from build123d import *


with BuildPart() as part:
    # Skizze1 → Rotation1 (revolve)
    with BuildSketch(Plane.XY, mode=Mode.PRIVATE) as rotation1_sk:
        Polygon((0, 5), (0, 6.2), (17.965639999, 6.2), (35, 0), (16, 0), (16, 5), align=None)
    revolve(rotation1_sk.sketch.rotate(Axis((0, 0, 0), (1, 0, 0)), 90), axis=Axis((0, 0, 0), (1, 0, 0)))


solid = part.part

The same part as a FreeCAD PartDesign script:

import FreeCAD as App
import Part
import Sketcher
from FreeCAD import Vector
Q = App.Units.Quantity


def add_polygon(sketch, points):
    """Adds a closed chain of lines whose ends are joined by coincident constraints."""
    first, n = sketch.GeometryCount, len(points)
    for a, b in zip(points, points[1:] + points[:1]):
        sketch.addGeometry(Part.LineSegment(App.Vector(*a, 0), App.Vector(*b, 0)), False)
    for i in range(n):
        sketch.addConstraint(Sketcher.Constraint("Coincident", first + i, 2, first + (i + 1) % n, 1))

doc = App.newDocument("Part")
body = doc.addObject("PartDesign::Body", "Body")

sketch1 = body.newObject("Sketcher::SketchObject", "Sketch")
sketch1.AttachmentSupport = (doc.getObject("XY_Plane"), [""])
sketch1.MapMode = "FlatFace"
add_polygon(sketch1, [(0, 6.2), (0, 5), (16, 5), (16, 0), (35, 0), (18, 6.2)])
sketch1.addConstraint([
    Sketcher.Constraint("Vertical", 0),
    Sketcher.Constraint("Horizontal", 1),
    Sketcher.Constraint("Vertical", 2),
    Sketcher.Constraint("Horizontal", 3),
    Sketcher.Constraint("Horizontal", 5),
    Sketcher.Constraint("PointOnObject", 0, 2, -2),
    Sketcher.Constraint("PointOnObject", 2, 2, -1),
    Sketcher.Constraint("DistanceX", 1, 1, 1, 2, 16.0),
    Sketcher.Constraint("DistanceX", 3, 1, 3, 2, 19.0),
    Sketcher.Constraint("DistanceY", 2, 2, 2, 1, 5.0),
    Sketcher.Constraint("Angle", 4, Q("160 deg")),
    Sketcher.Constraint("DistanceY", 0, 2, 0, 1, 1.2),
])
revolution = body.newObject("PartDesign::Revolution", "Revolution")
revolution.Profile = sketch1
revolution.ReferenceAxis = (sketch1, ["H_Axis"])
revolution.Angle = 360

doc.recompute()
